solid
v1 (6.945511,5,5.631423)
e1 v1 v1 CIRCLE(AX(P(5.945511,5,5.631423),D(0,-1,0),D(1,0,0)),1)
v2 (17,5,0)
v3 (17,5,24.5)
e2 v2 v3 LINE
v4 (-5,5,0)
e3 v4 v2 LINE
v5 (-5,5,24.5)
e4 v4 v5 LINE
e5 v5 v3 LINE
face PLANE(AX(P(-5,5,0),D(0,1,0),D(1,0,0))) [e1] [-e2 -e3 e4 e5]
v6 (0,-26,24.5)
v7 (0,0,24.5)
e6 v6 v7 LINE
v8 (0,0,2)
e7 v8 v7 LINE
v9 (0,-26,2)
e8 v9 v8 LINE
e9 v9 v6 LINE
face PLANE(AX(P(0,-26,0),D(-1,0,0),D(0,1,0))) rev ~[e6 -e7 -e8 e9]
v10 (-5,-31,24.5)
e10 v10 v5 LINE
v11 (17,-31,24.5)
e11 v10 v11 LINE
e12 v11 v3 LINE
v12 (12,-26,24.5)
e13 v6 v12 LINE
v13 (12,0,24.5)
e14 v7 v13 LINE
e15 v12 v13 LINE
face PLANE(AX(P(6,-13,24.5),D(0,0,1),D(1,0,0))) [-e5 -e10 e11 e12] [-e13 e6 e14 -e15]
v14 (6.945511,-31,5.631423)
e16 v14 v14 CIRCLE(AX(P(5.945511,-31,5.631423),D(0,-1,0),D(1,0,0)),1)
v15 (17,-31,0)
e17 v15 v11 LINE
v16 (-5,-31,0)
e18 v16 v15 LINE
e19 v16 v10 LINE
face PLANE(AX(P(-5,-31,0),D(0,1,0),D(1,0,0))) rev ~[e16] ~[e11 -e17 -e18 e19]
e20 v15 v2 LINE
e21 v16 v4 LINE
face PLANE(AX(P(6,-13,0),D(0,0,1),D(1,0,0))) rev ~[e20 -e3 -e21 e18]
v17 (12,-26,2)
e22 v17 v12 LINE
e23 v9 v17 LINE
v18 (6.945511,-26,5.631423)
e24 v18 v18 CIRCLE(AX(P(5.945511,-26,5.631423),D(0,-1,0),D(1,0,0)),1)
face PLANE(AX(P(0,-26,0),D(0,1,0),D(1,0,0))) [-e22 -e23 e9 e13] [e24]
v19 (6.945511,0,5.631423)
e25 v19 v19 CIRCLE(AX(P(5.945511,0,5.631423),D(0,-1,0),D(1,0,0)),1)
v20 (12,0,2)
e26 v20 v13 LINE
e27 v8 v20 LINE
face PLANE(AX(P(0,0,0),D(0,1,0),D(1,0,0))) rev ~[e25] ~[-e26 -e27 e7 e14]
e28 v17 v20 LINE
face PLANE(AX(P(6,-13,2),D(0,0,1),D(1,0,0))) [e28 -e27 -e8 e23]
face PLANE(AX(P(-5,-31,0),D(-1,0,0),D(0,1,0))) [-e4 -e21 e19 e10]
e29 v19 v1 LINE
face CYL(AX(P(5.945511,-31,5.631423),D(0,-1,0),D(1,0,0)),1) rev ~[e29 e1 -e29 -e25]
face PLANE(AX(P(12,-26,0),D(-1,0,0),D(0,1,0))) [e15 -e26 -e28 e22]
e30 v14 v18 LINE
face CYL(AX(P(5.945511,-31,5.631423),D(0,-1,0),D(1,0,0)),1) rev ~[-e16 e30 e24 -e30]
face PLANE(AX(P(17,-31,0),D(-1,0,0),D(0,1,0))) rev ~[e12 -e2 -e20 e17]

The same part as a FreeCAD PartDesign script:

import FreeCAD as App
import Part
import Sketcher
Q = App.Units.Quantity


def add_polygon(sketch, points):
    """Adds a closed chain of lines whose ends are joined by coincident constraints."""
    first, n = sketch.GeometryCount, len(points)
    for a, b in zip(points, points[1:] + points[:1]):
        sketch.addGeometry(Part.LineSegment(App.Vector(*a, 0), App.Vector(*b, 0)), False)
    for i in range(n):
        sketch.addConstraint(Sketcher.Constraint("Coincident", first + i, 2, first + (i + 1) % n, 1))

doc = App.newDocument("Part")
params = doc.addObject("Spreadsheet::Sheet", "Params")
for row, (alias, value) in enumerate([
    ("sketch1_width", "22 mm"),
    ("sketch1_width2", "12 mm"),
    ("sketch1_height", "36 mm"),
    ("sketch1_height2", "26 mm"),
    ("pad1_length", "24.5 mm"),
    ("sketch2_width", "12 mm"),
    ("sketch2_height", "26 mm"),
    ("pad2_length", "2 mm"),
    ("sketch3_diameter", "2 mm"),
], start=1):
    params.set(f"A{row}", alias)
    params.set(f"B{row}", "=" + value)
    params.setAlias(f"B{row}", alias)

body = doc.addObject("PartDesign::Body", "Body")

# Sketch on XY plane
sketch1 = body.newObject("Sketcher::SketchObject", "Sketch")
sketch1.AttachmentSupport = (doc.getObject("XY_Plane"), [""])
sketch1.MapMode = "FlatFace"
add_polygon(sketch1, [(-5, 5), (-5, -31), (17, -31), (17, 5)])  # lines 0-3
add_polygon(sketch1, [(12, -26), (0, -26), (0, 0), (12, 0)])  # lines 4-7
sketch1.addConstraint([
    Sketcher.Constraint("Vertical", 0),
    Sketcher.Constraint("Horizontal", 1),
    Sketcher.Constraint("Vertical", 2),
    Sketcher.Constraint("Horizontal", 3),
    Sketcher.Constraint("Horizontal", 4),
    Sketcher.Constraint("Vertical", 5),
    Sketcher.Constraint("Horizontal", 6),
    Sketcher.Constraint("Vertical", 7),
    Sketcher.Constraint("Coincident", 5, 2, -1, 1),
    Sketcher.Constraint("DistanceX", 1, 1, 1, 2, Q("22 mm")),
    Sketcher.Constraint("DistanceX", 4, 2, 4, 1, Q("12 mm")),
    Sketcher.Constraint("DistanceY", 0, 2, 0, 1, Q("36 mm")),
    Sketcher.Constraint("DistanceY", 5, 1, 5, 2, Q("26 mm")),
    Sketcher.Constraint("DistanceX", 0, 2, -1, 1, Q("5 mm")),
    Sketcher.Constraint("DistanceY", 0, 2, -1, 1, Q("31 mm")),
])
sketch1.setExpression("Constraints[17]", "Params.sketch1_width")
sketch1.setExpression("Constraints[18]", "Params.sketch1_width2")
sketch1.setExpression("Constraints[19]", "Params.sketch1_height")
sketch1.setExpression("Constraints[20]", "Params.sketch1_height2")
pad1 = body.newObject("PartDesign::Pad", "Pad")
pad1.Profile = sketch1
pad1.setExpression("Length", "Params.pad1_length")

# Sketch on XY plane
sketch2 = body.newObject("Sketcher::SketchObject", "Sketch001")
sketch2.AttachmentSupport = (doc.getObject("XY_Plane"), [""])
sketch2.MapMode = "FlatFace"
add_polygon(sketch2, [(0, 0), (0, -26), (12, -26), (12, 0)])  # lines 0-3
sketch2.addConstraint([
    Sketcher.Constraint("Vertical", 0),
    Sketcher.Constraint("Horizontal", 1),
    Sketcher.Constraint("Vertical", 2),
    Sketcher.Constraint("Horizontal", 3),
    Sketcher.Constraint("Coincident", 3, 2, -1, 1),
    Sketcher.Constraint("DistanceX", 1, 1, 1, 2, Q("12 mm")),
    Sketcher.Constraint("DistanceY", 0, 2, 0, 1, Q("26 mm")),
])
sketch2.setExpression("Constraints[9]", "Params.sketch2_width")
sketch2.setExpression("Constraints[10]", "Params.sketch2_height")
pad2 = body.newObject("PartDesign::Pad", "Pad001")
pad2.Profile = sketch2
pad2.setExpression("Length", "Params.pad2_length")

# Sketch on XZ plane
sketch3 = body.newObject("Sketcher::SketchObject", "Sketch002")
sketch3.AttachmentSupport = (doc.getObject("XZ_Plane"), [""])
sketch3.MapMode = "FlatFace"
sketch3.AttachmentOffset = App.Placement(App.Vector(0, 0, 31), App.Rotation())
sketch3.addGeometry(Part.Circle(App.Vector(5.945511, 5.631423, 0), App.Vector(0, 0, 1), 1), False)
sketch3.addConstraint([
    Sketcher.Constraint("Diameter", 0, Q("2 mm")),
    Sketcher.Constraint("DistanceX", -1, 1, 0, 3, Q("5.945511 mm")),
    Sketcher.Constraint("DistanceY", -1, 1, 0, 3, Q("5.631423 mm")),
])
sketch3.setExpression("Constraints[0]", "Params.sketch3_diameter")
pocket1 = body.newObject("PartDesign::Pocket", "Pocket")
pocket1.Profile = sketch3
pocket1.Type = "ThroughAll"

doc.recompute()
